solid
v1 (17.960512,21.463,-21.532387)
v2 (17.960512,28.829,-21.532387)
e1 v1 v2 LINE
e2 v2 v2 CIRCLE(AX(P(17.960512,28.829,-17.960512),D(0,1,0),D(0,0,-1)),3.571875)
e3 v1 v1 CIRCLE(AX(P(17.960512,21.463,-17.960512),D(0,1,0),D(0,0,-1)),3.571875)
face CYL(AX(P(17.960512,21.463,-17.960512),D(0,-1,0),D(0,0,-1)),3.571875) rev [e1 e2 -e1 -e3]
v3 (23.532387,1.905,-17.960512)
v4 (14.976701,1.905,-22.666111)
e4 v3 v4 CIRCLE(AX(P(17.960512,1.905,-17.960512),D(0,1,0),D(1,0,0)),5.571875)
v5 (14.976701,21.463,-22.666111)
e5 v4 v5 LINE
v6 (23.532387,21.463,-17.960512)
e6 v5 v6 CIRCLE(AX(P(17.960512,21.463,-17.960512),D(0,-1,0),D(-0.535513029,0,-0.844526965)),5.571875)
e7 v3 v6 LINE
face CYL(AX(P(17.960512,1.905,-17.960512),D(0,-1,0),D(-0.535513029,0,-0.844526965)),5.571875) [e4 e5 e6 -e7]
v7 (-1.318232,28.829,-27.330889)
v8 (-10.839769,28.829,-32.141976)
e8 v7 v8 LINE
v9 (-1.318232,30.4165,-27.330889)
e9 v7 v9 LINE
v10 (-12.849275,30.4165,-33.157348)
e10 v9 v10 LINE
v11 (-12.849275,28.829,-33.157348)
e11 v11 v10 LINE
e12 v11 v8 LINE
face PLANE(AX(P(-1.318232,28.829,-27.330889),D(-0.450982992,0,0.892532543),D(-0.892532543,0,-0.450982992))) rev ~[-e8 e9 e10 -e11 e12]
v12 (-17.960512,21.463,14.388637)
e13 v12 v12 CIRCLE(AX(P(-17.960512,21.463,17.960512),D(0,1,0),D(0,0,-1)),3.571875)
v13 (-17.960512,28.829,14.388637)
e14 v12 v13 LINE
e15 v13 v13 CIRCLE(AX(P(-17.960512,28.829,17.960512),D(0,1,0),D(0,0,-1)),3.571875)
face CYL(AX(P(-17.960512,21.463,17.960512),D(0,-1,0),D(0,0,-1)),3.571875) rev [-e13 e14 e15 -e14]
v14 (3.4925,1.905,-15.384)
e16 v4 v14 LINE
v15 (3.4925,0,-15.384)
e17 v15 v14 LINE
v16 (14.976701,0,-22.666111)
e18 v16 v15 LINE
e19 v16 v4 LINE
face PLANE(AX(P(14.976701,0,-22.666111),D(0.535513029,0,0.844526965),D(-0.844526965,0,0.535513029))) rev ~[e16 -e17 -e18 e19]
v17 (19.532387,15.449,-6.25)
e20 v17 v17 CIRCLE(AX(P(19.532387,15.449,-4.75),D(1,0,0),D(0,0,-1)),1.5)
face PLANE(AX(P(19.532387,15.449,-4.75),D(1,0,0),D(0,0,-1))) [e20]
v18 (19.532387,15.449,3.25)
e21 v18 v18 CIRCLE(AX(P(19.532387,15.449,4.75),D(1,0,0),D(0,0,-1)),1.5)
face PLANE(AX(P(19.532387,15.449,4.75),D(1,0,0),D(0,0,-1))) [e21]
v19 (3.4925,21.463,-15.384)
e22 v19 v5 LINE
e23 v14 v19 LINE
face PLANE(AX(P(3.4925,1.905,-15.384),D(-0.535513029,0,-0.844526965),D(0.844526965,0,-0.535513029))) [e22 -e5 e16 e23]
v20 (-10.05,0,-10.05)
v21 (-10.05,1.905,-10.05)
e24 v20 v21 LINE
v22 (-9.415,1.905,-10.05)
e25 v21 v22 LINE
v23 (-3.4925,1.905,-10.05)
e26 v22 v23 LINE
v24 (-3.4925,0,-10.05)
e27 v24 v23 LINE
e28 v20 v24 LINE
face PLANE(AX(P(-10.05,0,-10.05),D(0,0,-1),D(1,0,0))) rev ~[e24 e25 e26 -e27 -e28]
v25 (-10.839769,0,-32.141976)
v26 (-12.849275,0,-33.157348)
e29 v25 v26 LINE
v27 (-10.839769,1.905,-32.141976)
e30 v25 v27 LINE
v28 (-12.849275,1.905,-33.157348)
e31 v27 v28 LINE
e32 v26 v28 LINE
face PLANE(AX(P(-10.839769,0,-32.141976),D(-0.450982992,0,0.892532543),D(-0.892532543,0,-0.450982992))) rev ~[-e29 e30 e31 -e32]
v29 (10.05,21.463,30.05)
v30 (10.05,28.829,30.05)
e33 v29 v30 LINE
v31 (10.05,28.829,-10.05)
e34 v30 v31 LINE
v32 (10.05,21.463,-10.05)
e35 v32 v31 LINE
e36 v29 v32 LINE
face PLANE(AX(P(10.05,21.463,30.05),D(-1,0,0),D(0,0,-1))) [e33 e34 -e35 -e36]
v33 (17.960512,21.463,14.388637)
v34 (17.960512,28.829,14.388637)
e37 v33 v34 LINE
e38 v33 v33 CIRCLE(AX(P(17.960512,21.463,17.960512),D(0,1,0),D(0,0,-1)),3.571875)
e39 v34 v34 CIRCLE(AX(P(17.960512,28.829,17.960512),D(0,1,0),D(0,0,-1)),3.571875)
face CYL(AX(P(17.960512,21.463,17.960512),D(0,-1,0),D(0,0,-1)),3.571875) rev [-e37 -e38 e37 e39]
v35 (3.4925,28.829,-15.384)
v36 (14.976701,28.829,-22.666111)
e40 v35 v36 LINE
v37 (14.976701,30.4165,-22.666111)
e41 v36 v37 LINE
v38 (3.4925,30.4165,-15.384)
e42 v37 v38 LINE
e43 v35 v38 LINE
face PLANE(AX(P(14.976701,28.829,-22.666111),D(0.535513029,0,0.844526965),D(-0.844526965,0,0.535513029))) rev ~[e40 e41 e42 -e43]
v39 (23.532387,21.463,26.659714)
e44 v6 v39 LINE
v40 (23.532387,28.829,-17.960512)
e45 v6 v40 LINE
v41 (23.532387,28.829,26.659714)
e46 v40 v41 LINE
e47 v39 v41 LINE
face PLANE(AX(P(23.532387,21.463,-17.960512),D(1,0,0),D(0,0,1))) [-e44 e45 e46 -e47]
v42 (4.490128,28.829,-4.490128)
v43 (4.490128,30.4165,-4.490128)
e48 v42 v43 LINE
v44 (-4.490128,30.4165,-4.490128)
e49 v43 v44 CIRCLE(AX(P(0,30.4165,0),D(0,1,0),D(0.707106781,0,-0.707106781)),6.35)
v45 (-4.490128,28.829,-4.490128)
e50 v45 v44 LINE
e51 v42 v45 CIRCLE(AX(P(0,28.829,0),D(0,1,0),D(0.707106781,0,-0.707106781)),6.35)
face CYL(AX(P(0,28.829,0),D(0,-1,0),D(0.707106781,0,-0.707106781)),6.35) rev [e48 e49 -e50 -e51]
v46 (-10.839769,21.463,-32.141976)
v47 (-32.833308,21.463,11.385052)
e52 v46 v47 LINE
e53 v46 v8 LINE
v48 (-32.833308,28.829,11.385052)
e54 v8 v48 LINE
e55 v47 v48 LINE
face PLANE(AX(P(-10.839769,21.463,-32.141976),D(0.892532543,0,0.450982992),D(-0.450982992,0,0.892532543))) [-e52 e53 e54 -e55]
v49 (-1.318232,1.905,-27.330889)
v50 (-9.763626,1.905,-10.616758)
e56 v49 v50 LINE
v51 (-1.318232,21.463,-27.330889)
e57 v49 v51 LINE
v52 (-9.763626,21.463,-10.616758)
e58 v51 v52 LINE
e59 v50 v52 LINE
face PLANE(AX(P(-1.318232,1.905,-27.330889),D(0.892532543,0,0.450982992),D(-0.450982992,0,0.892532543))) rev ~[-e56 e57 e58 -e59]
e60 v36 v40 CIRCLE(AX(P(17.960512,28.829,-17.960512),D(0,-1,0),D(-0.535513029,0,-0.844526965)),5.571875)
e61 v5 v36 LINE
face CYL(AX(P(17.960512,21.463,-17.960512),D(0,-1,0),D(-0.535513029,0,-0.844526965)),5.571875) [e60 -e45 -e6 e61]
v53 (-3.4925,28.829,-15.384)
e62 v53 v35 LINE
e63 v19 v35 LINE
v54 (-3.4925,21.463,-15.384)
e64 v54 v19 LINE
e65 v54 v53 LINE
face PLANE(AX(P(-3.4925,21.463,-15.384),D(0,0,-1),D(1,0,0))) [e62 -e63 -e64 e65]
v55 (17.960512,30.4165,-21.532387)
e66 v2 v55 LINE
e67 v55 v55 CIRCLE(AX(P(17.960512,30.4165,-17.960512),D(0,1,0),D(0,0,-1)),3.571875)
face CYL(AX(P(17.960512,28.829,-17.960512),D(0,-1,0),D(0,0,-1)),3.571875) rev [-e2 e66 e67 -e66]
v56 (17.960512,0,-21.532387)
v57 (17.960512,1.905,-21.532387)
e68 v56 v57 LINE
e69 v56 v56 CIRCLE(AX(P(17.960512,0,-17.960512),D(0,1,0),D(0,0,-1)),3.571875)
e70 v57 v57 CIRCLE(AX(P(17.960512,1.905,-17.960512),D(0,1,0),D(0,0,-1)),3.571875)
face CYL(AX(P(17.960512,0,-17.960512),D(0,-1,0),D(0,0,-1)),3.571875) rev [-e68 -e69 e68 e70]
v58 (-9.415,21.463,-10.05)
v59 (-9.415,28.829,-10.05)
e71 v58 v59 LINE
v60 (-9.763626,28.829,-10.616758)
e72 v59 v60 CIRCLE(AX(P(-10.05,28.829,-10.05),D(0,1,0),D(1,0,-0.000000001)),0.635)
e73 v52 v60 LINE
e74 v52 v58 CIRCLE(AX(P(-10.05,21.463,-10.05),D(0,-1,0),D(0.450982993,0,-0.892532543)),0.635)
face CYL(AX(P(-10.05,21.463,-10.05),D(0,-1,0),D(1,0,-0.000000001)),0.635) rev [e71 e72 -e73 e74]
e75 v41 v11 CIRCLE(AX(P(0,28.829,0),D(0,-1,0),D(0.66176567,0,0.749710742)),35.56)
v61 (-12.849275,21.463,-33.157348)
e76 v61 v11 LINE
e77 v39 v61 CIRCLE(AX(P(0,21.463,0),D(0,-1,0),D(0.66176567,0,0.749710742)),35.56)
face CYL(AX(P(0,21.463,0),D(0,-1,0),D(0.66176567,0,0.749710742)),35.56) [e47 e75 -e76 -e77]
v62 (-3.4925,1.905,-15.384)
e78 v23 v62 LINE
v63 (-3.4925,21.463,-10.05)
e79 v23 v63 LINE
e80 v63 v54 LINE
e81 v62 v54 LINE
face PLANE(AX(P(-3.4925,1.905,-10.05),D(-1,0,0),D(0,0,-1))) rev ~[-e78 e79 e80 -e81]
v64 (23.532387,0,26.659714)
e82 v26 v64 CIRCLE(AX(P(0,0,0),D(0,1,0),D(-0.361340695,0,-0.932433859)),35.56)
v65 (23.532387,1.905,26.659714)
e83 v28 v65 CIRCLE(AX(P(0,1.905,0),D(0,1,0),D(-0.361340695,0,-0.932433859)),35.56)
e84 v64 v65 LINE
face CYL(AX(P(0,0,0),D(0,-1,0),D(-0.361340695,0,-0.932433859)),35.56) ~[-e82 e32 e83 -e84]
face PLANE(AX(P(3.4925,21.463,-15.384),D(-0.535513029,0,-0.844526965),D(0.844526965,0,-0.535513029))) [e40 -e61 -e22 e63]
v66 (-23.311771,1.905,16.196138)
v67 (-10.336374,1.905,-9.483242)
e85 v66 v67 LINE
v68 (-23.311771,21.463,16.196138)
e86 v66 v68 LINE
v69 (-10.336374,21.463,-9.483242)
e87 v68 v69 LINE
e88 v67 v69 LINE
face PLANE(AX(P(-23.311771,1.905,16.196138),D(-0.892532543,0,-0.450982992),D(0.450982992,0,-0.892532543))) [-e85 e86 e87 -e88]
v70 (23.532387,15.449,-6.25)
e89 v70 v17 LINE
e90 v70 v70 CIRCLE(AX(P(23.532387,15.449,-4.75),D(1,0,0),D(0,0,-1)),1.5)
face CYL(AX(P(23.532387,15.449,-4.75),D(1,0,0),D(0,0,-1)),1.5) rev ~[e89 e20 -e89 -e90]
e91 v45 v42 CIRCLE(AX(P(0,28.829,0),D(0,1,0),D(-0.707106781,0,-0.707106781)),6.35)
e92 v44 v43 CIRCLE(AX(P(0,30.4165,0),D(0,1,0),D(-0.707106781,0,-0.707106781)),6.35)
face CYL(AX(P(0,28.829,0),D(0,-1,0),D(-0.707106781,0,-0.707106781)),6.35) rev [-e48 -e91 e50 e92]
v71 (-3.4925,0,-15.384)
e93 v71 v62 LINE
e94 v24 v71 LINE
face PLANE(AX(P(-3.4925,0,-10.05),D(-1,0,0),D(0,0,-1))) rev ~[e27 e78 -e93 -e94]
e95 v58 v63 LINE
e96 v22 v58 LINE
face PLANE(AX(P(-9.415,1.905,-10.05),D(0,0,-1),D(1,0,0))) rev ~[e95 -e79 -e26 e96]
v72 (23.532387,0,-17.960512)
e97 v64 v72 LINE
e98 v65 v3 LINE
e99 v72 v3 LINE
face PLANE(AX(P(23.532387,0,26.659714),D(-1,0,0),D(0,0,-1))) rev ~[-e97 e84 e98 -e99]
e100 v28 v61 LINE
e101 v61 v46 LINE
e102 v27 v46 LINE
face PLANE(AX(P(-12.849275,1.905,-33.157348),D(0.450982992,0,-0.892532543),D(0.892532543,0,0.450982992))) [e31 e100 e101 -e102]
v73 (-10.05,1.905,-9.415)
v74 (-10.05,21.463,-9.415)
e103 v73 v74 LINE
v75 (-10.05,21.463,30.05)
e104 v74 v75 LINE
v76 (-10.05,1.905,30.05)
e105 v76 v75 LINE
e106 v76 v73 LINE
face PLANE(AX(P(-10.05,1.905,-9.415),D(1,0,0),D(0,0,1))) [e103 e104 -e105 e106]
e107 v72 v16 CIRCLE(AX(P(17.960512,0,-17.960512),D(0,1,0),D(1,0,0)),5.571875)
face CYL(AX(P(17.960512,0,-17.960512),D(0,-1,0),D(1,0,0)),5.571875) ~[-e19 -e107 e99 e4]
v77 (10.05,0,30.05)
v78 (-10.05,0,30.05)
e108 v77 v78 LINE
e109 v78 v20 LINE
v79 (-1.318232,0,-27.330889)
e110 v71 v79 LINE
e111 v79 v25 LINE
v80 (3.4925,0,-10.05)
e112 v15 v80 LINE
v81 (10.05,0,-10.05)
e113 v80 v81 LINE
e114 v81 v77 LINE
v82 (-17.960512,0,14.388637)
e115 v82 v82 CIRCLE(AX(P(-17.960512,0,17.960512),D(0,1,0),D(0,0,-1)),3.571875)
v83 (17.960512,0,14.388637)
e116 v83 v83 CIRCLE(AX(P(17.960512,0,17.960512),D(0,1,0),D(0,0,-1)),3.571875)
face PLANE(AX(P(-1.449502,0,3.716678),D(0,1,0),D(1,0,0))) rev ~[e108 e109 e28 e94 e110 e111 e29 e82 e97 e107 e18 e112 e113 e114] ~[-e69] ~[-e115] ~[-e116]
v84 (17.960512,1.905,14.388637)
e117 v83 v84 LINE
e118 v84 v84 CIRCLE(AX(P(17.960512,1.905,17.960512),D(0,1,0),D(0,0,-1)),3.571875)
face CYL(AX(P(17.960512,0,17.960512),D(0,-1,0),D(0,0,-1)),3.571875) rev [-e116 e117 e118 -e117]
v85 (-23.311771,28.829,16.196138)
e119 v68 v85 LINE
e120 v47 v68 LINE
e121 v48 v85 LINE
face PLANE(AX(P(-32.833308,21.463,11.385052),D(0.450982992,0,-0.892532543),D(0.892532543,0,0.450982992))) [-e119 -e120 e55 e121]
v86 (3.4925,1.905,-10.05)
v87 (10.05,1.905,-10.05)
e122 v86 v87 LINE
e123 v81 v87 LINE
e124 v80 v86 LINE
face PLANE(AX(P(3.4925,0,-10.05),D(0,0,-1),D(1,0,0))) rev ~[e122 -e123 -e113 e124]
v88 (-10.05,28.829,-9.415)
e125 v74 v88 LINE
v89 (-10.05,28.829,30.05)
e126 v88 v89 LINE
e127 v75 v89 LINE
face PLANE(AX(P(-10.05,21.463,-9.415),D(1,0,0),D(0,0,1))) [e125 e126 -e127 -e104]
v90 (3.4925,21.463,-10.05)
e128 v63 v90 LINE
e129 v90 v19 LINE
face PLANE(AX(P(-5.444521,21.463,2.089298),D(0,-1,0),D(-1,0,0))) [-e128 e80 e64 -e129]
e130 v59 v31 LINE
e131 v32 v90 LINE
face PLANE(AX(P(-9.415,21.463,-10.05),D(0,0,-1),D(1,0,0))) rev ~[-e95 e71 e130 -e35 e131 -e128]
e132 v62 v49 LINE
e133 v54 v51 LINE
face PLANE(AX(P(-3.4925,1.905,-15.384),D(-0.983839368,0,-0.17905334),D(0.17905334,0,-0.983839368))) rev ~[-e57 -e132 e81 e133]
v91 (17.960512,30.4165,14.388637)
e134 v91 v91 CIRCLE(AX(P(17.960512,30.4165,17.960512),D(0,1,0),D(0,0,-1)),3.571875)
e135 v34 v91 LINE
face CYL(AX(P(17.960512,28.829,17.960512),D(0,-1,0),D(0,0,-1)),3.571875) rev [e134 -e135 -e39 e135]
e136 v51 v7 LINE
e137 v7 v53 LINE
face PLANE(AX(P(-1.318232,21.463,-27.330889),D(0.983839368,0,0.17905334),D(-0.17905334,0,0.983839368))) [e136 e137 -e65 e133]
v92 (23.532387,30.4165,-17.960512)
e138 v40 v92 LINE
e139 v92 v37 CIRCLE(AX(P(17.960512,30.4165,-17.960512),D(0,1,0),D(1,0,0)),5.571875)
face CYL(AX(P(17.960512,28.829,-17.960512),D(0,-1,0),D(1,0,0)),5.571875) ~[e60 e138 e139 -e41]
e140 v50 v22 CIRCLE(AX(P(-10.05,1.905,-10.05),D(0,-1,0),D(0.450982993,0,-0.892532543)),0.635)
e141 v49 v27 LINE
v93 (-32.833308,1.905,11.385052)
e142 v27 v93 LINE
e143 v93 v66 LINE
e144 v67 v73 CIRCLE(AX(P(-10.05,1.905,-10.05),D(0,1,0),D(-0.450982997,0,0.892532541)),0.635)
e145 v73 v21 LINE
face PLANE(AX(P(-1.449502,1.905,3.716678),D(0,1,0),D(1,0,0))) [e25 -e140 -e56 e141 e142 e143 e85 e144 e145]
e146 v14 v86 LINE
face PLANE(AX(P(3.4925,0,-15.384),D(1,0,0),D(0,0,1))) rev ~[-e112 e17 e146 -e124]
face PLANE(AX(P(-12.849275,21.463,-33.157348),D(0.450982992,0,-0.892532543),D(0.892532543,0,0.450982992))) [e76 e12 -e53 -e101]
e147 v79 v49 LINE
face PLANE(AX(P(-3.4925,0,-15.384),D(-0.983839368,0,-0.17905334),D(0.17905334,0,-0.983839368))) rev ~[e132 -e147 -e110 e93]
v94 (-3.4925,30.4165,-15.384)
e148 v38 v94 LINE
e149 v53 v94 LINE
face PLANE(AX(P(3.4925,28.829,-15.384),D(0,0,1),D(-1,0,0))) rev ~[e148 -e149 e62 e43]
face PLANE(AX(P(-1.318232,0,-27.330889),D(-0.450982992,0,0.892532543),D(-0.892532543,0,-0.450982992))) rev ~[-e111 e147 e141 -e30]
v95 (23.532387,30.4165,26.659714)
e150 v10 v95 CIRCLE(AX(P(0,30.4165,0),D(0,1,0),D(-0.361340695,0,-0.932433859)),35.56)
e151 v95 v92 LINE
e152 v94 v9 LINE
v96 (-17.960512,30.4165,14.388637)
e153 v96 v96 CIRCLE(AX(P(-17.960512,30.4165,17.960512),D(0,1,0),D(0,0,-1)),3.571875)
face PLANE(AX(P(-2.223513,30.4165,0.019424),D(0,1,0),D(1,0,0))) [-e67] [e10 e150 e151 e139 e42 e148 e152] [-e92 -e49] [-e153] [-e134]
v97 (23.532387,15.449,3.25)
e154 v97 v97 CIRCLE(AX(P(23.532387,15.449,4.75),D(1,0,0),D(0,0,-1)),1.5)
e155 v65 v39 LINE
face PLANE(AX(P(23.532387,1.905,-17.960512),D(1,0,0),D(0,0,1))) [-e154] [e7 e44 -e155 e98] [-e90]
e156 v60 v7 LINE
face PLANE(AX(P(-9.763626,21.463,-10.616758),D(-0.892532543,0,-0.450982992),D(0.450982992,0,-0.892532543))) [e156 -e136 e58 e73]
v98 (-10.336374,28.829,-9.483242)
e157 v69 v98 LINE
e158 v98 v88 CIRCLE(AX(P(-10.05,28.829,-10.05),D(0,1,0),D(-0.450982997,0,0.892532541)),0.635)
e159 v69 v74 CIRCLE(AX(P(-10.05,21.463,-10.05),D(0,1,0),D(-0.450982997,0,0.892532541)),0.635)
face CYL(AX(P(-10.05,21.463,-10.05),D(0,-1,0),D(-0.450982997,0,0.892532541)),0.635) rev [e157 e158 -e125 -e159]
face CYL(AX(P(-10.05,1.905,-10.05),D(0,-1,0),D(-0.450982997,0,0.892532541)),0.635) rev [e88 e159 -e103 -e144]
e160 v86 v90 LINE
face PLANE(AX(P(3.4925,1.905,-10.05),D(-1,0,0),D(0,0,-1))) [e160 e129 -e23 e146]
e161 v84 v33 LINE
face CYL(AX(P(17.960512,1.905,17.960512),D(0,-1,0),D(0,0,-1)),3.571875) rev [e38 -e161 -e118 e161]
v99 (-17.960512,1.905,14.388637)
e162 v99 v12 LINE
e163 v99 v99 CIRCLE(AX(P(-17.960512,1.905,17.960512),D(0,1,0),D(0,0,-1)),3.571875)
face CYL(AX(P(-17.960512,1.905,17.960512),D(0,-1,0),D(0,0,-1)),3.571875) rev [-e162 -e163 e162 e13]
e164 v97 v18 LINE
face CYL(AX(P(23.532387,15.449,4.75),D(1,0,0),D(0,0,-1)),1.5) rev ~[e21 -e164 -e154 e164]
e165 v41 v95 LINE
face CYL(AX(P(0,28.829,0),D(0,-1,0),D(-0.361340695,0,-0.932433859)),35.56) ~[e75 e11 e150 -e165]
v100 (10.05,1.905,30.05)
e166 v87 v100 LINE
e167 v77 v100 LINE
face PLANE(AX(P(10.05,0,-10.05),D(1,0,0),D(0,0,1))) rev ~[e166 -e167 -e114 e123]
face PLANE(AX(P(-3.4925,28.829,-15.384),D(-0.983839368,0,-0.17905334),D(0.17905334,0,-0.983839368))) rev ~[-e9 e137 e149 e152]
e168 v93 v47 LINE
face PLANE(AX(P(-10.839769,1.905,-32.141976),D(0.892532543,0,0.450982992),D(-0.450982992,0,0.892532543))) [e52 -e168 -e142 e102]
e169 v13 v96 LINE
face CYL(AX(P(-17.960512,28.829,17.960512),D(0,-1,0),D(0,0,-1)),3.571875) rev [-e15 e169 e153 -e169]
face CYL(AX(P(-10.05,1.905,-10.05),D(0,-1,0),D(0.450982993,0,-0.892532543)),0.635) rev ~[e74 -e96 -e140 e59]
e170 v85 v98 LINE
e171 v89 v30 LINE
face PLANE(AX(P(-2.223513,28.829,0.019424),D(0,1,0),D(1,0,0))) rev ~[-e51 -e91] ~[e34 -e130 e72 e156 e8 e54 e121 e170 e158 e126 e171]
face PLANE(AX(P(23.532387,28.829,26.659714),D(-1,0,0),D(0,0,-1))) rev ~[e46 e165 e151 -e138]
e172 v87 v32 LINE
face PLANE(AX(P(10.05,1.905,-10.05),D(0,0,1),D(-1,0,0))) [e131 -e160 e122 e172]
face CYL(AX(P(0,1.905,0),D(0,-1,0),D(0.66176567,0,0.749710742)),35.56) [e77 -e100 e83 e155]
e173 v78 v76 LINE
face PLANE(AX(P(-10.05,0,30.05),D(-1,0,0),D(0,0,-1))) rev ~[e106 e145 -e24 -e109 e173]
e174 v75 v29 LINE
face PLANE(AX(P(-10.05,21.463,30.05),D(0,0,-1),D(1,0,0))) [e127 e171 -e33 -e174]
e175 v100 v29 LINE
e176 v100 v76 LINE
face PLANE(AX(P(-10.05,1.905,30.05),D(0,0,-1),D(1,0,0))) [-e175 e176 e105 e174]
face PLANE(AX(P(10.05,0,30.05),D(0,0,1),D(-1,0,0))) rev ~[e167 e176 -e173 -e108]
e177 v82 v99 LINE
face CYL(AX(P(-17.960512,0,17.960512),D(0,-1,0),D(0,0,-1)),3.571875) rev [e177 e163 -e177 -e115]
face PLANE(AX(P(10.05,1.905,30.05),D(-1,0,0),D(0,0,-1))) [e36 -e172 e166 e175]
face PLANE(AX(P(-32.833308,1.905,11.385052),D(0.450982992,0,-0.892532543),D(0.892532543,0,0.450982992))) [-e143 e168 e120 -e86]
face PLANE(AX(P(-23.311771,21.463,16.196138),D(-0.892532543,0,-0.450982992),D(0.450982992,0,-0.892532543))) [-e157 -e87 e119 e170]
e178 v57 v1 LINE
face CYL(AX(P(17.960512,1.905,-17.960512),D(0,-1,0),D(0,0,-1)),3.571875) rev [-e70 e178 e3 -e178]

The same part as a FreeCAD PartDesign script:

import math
import FreeCAD as App
import Part
import Sketcher
Q = App.Units.Quantity

doc = App.newDocument("Part")
params = doc.addObject("Spreadsheet::Sheet", "Params")
for row, (alias, value) in enumerate([
    ("sketch1_radius", "1.4 in"),
    ("sketch1_diameter", "0.28125 in"),
    ("sketch1_height", "0.21 in"),
    ("sketch1_length", "0.42 in"),
    ("pad1_length", "0.075 in"),
    ("sketch2_radius", "1.4 in"),
    ("sketch2_diameter", "0.28125 in"),
    ("sketch2_radius2", "0.025 in"),
    ("sketch2_height", "0.21 in"),
    ("sketch2_length", "1.92 in"),
    ("pad2_length", "0.77 in"),
    ("sketch3_radius", "1.4 in"),
    ("sketch3_diameter", "0.28125 in"),
    ("sketch3_radius2", "0.025 in"),
    ("sketch3_length", "0.42 in"),
    ("sketch3_length2", "1.92 in"),
    ("pad3_length", "0.29 in"),
    ("sketch4_radius", "1.4 in"),
    ("sketch4_radius2", "0.25 in"),
    ("sketch4_diameter", "0.28125 in"),
    ("sketch4_width", "0.275 in"),
    ("pad4_length", "0.0625 in"),
    ("pocket1_length", "4 mm"),
], start=1):
    params.set(f"A{row}", alias)
    params.set(f"B{row}", "=" + value)
    params.setAlias(f"B{row}", alias)

body = doc.addObject("PartDesign::Body", "Body")

# Sketch on XZ plane
sketch1 = doc.addObject("Sketcher::SketchObject", "Sketch")
body.addObject(sketch1)
sketch1.AttachmentSupport = (doc.XZ_Plane, [""])
sketch1.MapMode = "FlatFace"
sketch1.addGeometry(Part.LineSegment(App.Vector(10.1, 30.1, 0), App.Vector(-10.1, 30.1, 0)), False)
sketch1.addGeometry(Part.LineSegment(App.Vector(-10.1, 30.1, 0), App.Vector(-10.1, -10.1, 0)), False)
sketch1.addGeometry(Part.LineSegment(App.Vector(-10.1, -10.1, 0), App.Vector(-3.5, -10.1, 0)), False)
sketch1.addGeometry(Part.LineSegment(App.Vector(-3.5, -10.1, 0), App.Vector(-3.5, -15.4, 0)), False)
sketch1.addGeometry(Part.LineSegment(App.Vector(-3.5, -15.4, 0), App.Vector(-1.3, -27.3, 0)), False)
sketch1.addGeometry(Part.LineSegment(App.Vector(-1.3, -27.3, 0), App.Vector(-10.8, -32.1, 0)), False)
sketch1.addGeometry(Part.LineSegment(App.Vector(-10.8, -32.1, 0), App.Vector(-12.8, -33.2, 0)), False)
sketch1.addGeometry(Part.ArcOfCircle(Part.Circle(App.Vector(0, 0, 0), App.Vector(0, 0, 1), 35.6), math.radians(49), math.radians(249)), False)
sketch1.addGeometry(Part.LineSegment(App.Vector(23.5, 26.7, 0), App.Vector(23.5, -18, 0)), False)
sketch1.addGeometry(Part.ArcOfCircle(Part.Circle(App.Vector(18, -18, 0), App.Vector(0, 0, 1), 5.6), math.radians(-122), math.radians(0)), False)
sketch1.addGeometry(Part.LineSegment(App.Vector(15, -22.7, 0), App.Vector(3.5, -15.4, 0)), False)
sketch1.addGeometry(Part.LineSegment(App.Vector(3.5, -15.4, 0), App.Vector(3.5, -10.1, 0)), False)
sketch1.addGeometry(Part.LineSegment(App.Vector(3.5, -10.1, 0), App.Vector(10.1, -10.1, 0)), False)
sketch1.addGeometry(Part.LineSegment(App.Vector(10.1, -10.1, 0), App.Vector(10.1, 30.1, 0)), False)
sketch1.addGeometry(Part.Circle(App.Vector(-18, 18, 0), App.Vector(0, 0, 1), 3.6), False)
sketch1.addGeometry(Part.Circle(App.Vector(18, 18, 0), App.Vector(0, 0, 1), 3.6), False)
sketch1.addGeometry(Part.Circle(App.Vector(18, -18, 0), App.Vector(0, 0, 1), 3.6), False)
sketch1.addConstraint(Sketcher.Constraint("Coincident", 0, 2, 1, 1))
sketch1.addConstraint(Sketcher.Constraint("Coincident", 1, 2, 2, 1))
sketch1.addConstraint(Sketcher.Constraint("Coincident", 2, 2, 3, 1))
sketch1.addConstraint(Sketcher.Constraint("Coincident", 3, 2, 4, 1))
sketch1.addConstraint(Sketcher.Constraint("Coincident", 4, 2, 5, 1))
sketch1.addConstraint(Sketcher.Constraint("Coincident", 5, 2, 6, 1))
sketch1.addConstraint(Sketcher.Constraint("Coincident", 6, 2, 7, 2))
sketch1.addConstraint(Sketcher.Constraint("Coincident", 7, 1, 8, 1))
sketch1.addConstraint(Sketcher.Constraint("Tangent", 8, 2, 9, 2))
sketch1.addConstraint(Sketcher.Constraint("Tangent", 9, 1, 10, 1))
sketch1.addConstraint(Sketcher.Constraint("Coincident", 10, 2, 11, 1))
sketch1.addConstraint(Sketcher.Constraint("Coincident", 11, 2, 12, 1))
sketch1.addConstraint(Sketcher.Constraint("Coincident", 12, 2, 13, 1))
sketch1.addConstraint(Sketcher.Constraint("Coincident", 13, 2, 0, 1))
sketch1.addConstraint(Sketcher.Constraint("Horizontal", 0))
sketch1.addConstraint(Sketcher.Constraint("Vertical", 1))
sketch1.addConstraint(Sketcher.Constraint("Horizontal", 2))
sketch1.addConstraint(Sketcher.Constraint("Vertical", 3))
sketch1.addConstraint(Sketcher.Constraint("Vertical", 8))
sketch1.addConstraint(Sketcher.Constraint("Vertical", 11))
sketch1.addConstraint(Sketcher.Constraint("Horizontal", 12))
sketch1.addConstraint(Sketcher.Constraint("Vertical", 13))
sketch1.addConstraint(Sketcher.Constraint("Coincident", 7, 3, -1, 1))
sketch1.addConstraint(Sketcher.Constraint("Coincident", 16, 3, 9, 3))
sketch1.addConstraint(Sketcher.Constraint("Equal", 14, 15))
sketch1.addConstraint(Sketcher.Constraint("Equal", 15, 16))
sketch1.addConstraint(Sketcher.Constraint("Symmetric", 9, 3, 14, 3, -1, 1))
sketch1.addConstraint(Sketcher.Constraint("Symmetric", 14, 3, 15, 3, -2))
sketch1.addConstraint(Sketcher.Constraint("Symmetric", 3, 2, 10, 2, -2))
sketch1.addConstraint(Sketcher.Constraint("Symmetric", 1, 2, 12, 2, -2))
sketch1.addConstraint(Sketcher.Constraint("Parallel", 5, 6))
sketch1.addConstraint(Sketcher.Constraint("Radius", 7, Q("1.4 in")))
sketch1.addConstraint(Sketcher.Constraint("Diameter", 14, Q("0.28125 in")))
sketch1.addConstraint(Sketcher.Constraint("DistanceY", 3, 2, 3, 1, Q("0.21 in")))
sketch1.addConstraint(Sketcher.Constraint("Distance", 5, Q("0.42 in")))
sketch1.addConstraint(Sketcher.Constraint("DistanceX", 3, 2, 10, 2, Q("0.275 in")))
sketch1.addConstraint(Sketcher.Constraint("DistanceX", 0, 2, 0, 1, 20.1))
sketch1.addConstraint(Sketcher.Constraint("DistanceY", 1, 2, 1, 1, 40.1))
sketch1.addConstraint(Sketcher.Constraint("Radius", 9, 5.571875))
sketch1.addConstraint(Sketcher.Constraint("DistanceY", -1, 1, 0, 2, 30.05))
sketch1.addConstraint(Sketcher.Constraint("DistanceX", -1, 1, 9, 1, 14.976701))
sketch1.addConstraint(Sketcher.Constraint("DistanceY", 15, 3, 7, 1, 8.699202))
sketch1.addConstraint(Sketcher.Constraint("Distance", 4, 12.14313))
sketch1.addConstraint(Sketcher.Constraint("DistanceY", 4, 2, -1, 1, 27.330889))
sketch1.addConstraint(Sketcher.Constraint("DistanceX", 5, 2, -1, 1, 10.839769))
sketch1.setExpression("Constraints[31]", "Params.sketch1_radius")
sketch1.setExpression("Constraints[32]", "Params.sketch1_diameter")
sketch1.setExpression("Constraints[33]", "Params.sketch1_height")
sketch1.setExpression("Constraints[34]", "Params.sketch1_length")
pad1 = doc.addObject("PartDesign::Pad", "Pad")
body.addObject(pad1)
pad1.Profile = sketch1
pad1.setExpression("Length", "Params.pad1_length")
pad1.Reversed = True

# Sketch on XZ plane
sketch2 = doc.addObject("Sketcher::SketchObject", "Sketch001")
body.addObject(sketch2)
sketch2.AttachmentSupport = (doc.XZ_Plane, [""])
sketch2.MapMode = "FlatFace"
sketch2.AttachmentOffset = App.Placement(App.Vector(0, 0, -0.075 * 25.4), App.Rotation())
sketch2.addGeometry(Part.LineSegment(App.Vector(-32.83, 11.39, 0), App.Vector(-10.84, -32.14, 0)), False)
sketch2.addGeometry(Part.LineSegment(App.Vector(-10.84, -32.14, 0), App.Vector(-12.85, -33.16, 0)), False)
sketch2.addGeometry(Part.ArcOfCircle(Part.Circle(App.Vector(0, 0, 0), App.Vector(0, 0, 1), 35.56), math.radians(49), math.radians(249)), False)
sketch2.addGeometry(Part.LineSegment(App.Vector(23.53, 26.66, 0), App.Vector(23.53, -17.96, 0)), False)
sketch2.addGeometry(Part.ArcOfCircle(Part.Circle(App.Vector(17.96, -17.96, 0), App.Vector(0, 0, 1), 5.57), math.radians(-122), math.radians(0)), False)
sketch2.addGeometry(Part.LineSegment(App.Vector(14.98, -22.67, 0), App.Vector(3.49, -15.38, 0)), False)
sketch2.addGeometry(Part.LineSegment(App.Vector(3.49, -15.38, 0), App.Vector(3.49, -10.05, 0)), False)
sketch2.addGeometry(Part.LineSegment(App.Vector(3.49, -10.05, 0), App.Vector(10.05, -10.05, 0)), False)
sketch2.addGeometry(Part.LineSegment(App.Vector(10.05, -10.05, 0), App.Vector(10.05, 30.05, 0)), False)
sketch2.addGeometry(Part.LineSegment(App.Vector(10.05, 30.05, 0), App.Vector(-10.05, 30.05, 0)), False)
sketch2.addGeometry(Part.LineSegment(App.Vector(-10.05, 30.05, 0), App.Vector(-10.05, -9.41, 0)), False)
sketch2.addGeometry(Part.ArcOfCircle(Part.Circle(App.Vector(-10.05, -10.05, 0), App.Vector(0, 0, 1), 0.63), math.radians(90), math.radians(117)), False)
sketch2.addGeometry(Part.LineSegment(App.Vector(-10.34, -9.48, 0), App.Vector(-23.31, 16.2, 0)), False)
sketch2.addGeometry(Part.LineSegment(App.Vector(-23.31, 16.2, 0), App.Vector(-32.83, 11.39, 0)), False)
sketch2.addGeometry(Part.Circle(App.Vector(17.96, 17.96, 0), App.Vector(0, 0, 1), 3.57), False)
sketch2.addGeometry(Part.Circle(App.Vector(-17.96, 17.96, 0), App.Vector(0, 0, 1), 3.57), False)
sketch2.addGeometry(Part.Circle(App.Vector(17.96, -17.96, 0), App.Vector(0, 0, 1), 3.57), False)
sketch2.addGeometry(Part.LineSegment(App.Vector(-1.32, -27.33, 0), App.Vector(-9.76, -10.62, 0)), False)
sketch2.addGeometry(Part.ArcOfCircle(Part.Circle(App.Vector(-10.05, -10.05, 0), App.Vector(0, 0, 1), 0.64), math.radians(-63), math.radians(0)), False)
sketch2.addGeometry(Part.LineSegment(App.Vector(-9.41, -10.05, 0), App.Vector(-3.49, -10.05, 0)), False)
sketch2.addGeometry(Part.LineSegment(App.Vector(-3.49, -10.05, 0), App.Vector(-3.49, -15.38, 0)), False)
sketch2.addGeometry(Part.LineSegment(App.Vector(-3.49, -15.38, 0), App.Vector(-1.32, -27.33, 0)), False)
sketch2.addConstraint(Sketcher.Constraint("Coincident", 0, 2, 1, 1))
sketch2.addConstraint(Sketcher.Constraint("Coincident", 1, 2, 2, 2))
sketch2.addConstraint(Sketcher.Constraint("Coincident", 2, 1, 3, 1))
sketch2.addConstraint(Sketcher.Constraint("Tangent", 3, 2, 4, 2))
sketch2.addConstraint(Sketcher.Constraint("Tangent", 4, 1, 5, 1))
sketch2.addConstraint(Sketcher.Constraint("Coincident", 5, 2, 6, 1))
sketch2.addConstraint(Sketcher.Constraint("Coincident", 6, 2, 7, 1))
sketch2.addConstraint(Sketcher.Constraint("Coincident", 7, 2, 8, 1))
sketch2.addConstraint(Sketcher.Constraint("Coincident", 8, 2, 9, 1))
sketch2.addConstraint(Sketcher.Constraint("Coincident", 9, 2, 10, 1))
sketch2.addConstraint(Sketcher.Constraint("Coincident", 10, 2, 11, 1))
sketch2.addConstraint(Sketcher.Constraint("Coincident", 11, 2, 12, 1))
sketch2.addConstraint(Sketcher.Constraint("Coincident", 12, 2, 13, 1))
sketch2.addConstraint(Sketcher.Constraint("Coincident", 13, 2, 0, 1))
sketch2.addConstraint(Sketcher.Constraint("Coincident", 17, 2, 18, 1))
sketch2.addConstraint(Sketcher.Constraint("Coincident", 18, 2, 19, 1))
sketch2.addConstraint(Sketcher.Constraint("Coincident", 19, 2, 20, 1))
sketch2.addConstraint(Sketcher.Constraint("Coincident", 20, 2, 21, 1))
sketch2.addConstraint(Sketcher.Constraint("Coincident", 21, 2, 17, 1))
sketch2.addConstraint(Sketcher.Constraint("Vertical", 3))
sketch2.addConstraint(Sketcher.Constraint("Vertical", 6))
sketch2.addConstraint(Sketcher.Constraint("Horizontal", 7))
sketch2.addConstraint(Sketcher.Constraint("Vertical", 8))
sketch2.addConstraint(Sketcher.Constraint("Horizontal", 9))
sketch2.addConstraint(Sketcher.Constraint("Vertical", 10))
sketch2.addConstraint(Sketcher.Constraint("Horizontal", 19))
sketch2.addConstraint(Sketcher.Constraint("Vertical", 20))
sketch2.addConstraint(Sketcher.Constraint("Coincident", 2, 3, -1, 1))
sketch2.addConstraint(Sketcher.Constraint("Coincident", 16, 3, 4, 3))
sketch2.addConstraint(Sketcher.Constraint("Coincident", 18, 3, 11, 3))
sketch2.addConstraint(Sketcher.Constraint("Equal", 14, 15))
sketch2.addConstraint(Sketcher.Constraint("Equal", 15, 16))
sketch2.addConstraint(Sketcher.Constraint("Equal", 11, 18))
sketch2.addConstraint(Sketcher.Constraint("Symmetric", 4, 3, 15, 3, -1, 1))
sketch2.addConstraint(Sketcher.Constraint("Symmetric", 14, 3, 15, 3, -2))
sketch2.addConstraint(Sketcher.Constraint("Symmetric", 6, 2, 19, 2, -2))
sketch2.addConstraint(Sketcher.Constraint("Perpendicular", 0, 1))
sketch2.addConstraint(Sketcher.Constraint("Perpendicular", 1, 12))
sketch2.addConstraint(Sketcher.Constraint("Perpendicular", 12, 13))
sketch2.addConstraint(Sketcher.Constraint("Perpendicular", 13, 17))
sketch2.addConstraint(Sketcher.Constraint("Horizontal", 18, 3, 6, 2))
sketch2.addConstraint(Sketcher.Constraint("Horizontal", 5, 2, 20, 2))
sketch2.addConstraint(Sketcher.Constraint("Vertical", 18, 3, 9, 2))
sketch2.addConstraint(Sketcher.Constraint("Radius", 2, Q("1.4 in")))
sketch2.addConstraint(Sketcher.Constraint("Diameter", 14, Q("0.28125 in")))
sketch2.addConstraint(Sketcher.Constraint("Radius", 11, Q("0.025 in")))
sketch2.addConstraint(Sketcher.Constraint("DistanceY", 6, 1, 6, 2, Q("0.21 in")))
sketch2.addConstraint(Sketcher.Constraint("Distance", 0, Q("1.92 in")))
sketch2.addConstraint(Sketcher.Constraint("Distance", 13, Q("0.42 in")))
sketch2.addConstraint(Sketcher.Constraint("DistanceX", 20, 2, 5, 2, Q("0.275 in")))
sketch2.addConstraint(Sketcher.Constraint("DistanceX", 7, 1, 7, 2, 6.5575))
sketch2.addConstraint(Sketcher.Constraint("DistanceX", 9, 2, 9, 1, 20.1))
sketch2.addConstraint(Sketcher.Constraint("DistanceY", 8, 1, 8, 2, 40.1))
sketch2.addConstraint(Sketcher.Constraint("Radius", 4, 5.571875))
sketch2.addConstraint(Sketcher.Constraint("DistanceY", 11, 3, -1, 1, 10.05))
sketch2.addConstraint(Sketcher.Constraint("DistanceX", -1, 1, 4, 1, 14.976701))
sketch2.addConstraint(Sketcher.Constraint("DistanceY", 14, 3, 2, 1, 8.699202))
sketch2.addConstraint(Sketcher.Constraint("Distance", 21, 12.14313))
sketch2.addConstraint(Sketcher.Constraint("DistanceX", 0, 2, -1, 1, 10.839769))
sketch2.addConstraint(Sketcher.Constraint("DistanceY", 1, 2, -1, 1, 33.157348))
sketch2.addConstraint(Sketcher.Constraint("DistanceY", 11, 2, -1, 1, 9.483242))
sketch2.addConstraint(Sketcher.Constraint("DistanceY", 17, 2, -1, 1, 10.616758))
sketch2.setExpression("Constraints[43]", "Params.sketch2_radius")
sketch2.setExpression("Constraints[44]", "Params.sketch2_diameter")
sketch2.setExpression("Constraints[45]", "Params.sketch2_radius2")
sketch2.setExpression("Constraints[46]", "Params.sketch2_height")
sketch2.setExpression("Constraints[47]", "Params.sketch2_length")
pad2 = doc.addObject("PartDesign::Pad", "Pad001")
body.addObject(pad2)
pad2.Profile = sketch2
pad2.setExpression("Length", "Params.pad2_length")
pad2.Reversed = True

# Sketch on XZ plane
sketch3 = doc.addObject("Sketcher::SketchObject", "Sketch002")
body.addObject(sketch3)
sketch3.AttachmentSupport = (doc.XZ_Plane, [""])
sketch3.MapMode = "FlatFace"
sketch3.AttachmentOffset = App.Placement(App.Vector(0, 0, -0.845 * 25.4), App.Rotation())
sketch3.addGeometry(Part.LineSegment(App.Vector(-9.41, -10.05, 0), App.Vector(10.05, -10.05, 0)), False)
sketch3.addGeometry(Part.LineSegment(App.Vector(10.05, -10.05, 0), App.Vector(10.05, 30.05, 0)), False)
sketch3.addGeometry(Part.LineSegment(App.Vector(10.05, 30.05, 0), App.Vector(-10.05, 30.05, 0)), False)
sketch3.addGeometry(Part.LineSegment(App.Vector(-10.05, 30.05, 0), App.Vector(-10.05, -9.41, 0)), False)
sketch3.addGeometry(Part.ArcOfCircle(Part.Circle(App.Vector(-10.05, -10.05, 0), App.Vector(0, 0, 1), 0.63), math.radians(90), math.radians(117)), False)
sketch3.addGeometry(Part.LineSegment(App.Vector(-10.34, -9.48, 0), App.Vector(-23.31, 16.2, 0)), False)
sketch3.addGeometry(Part.LineSegment(App.Vector(-23.31, 16.2, 0), App.Vector(-32.83, 11.39, 0)), False)
sketch3.addGeometry(Part.LineSegment(App.Vector(-32.83, 11.39, 0), App.Vector(-10.84, -32.14, 0)), False)
sketch3.addGeometry(Part.LineSegment(App.Vector(-10.84, -32.14, 0), App.Vector(-12.85, -33.16, 0)), False)
sketch3.addGeometry(Part.ArcOfCircle(Part.Circle(App.Vector(0, 0, 0), App.Vector(0, 0, 1), 35.56), math.radians(49), math.radians(249)), False)
sketch3.addGeometry(Part.LineSegment(App.Vector(23.53, 26.66, 0), App.Vector(23.53, -17.96, 0)), False)
sketch3.addGeometry(Part.ArcOfCircle(Part.Circle(App.Vector(17.96, -17.96, 0), App.Vector(0, 0, 1), 5.57), math.radians(-122), math.radians(0)), False)
sketch3.addGeometry(Part.LineSegment(App.Vector(14.98, -22.67, 0), App.Vector(3.49, -15.38, 0)), False)
sketch3.addGeometry(Part.LineSegment(App.Vector(3.49, -15.38, 0), App.Vector(-3.49, -15.38, 0)), False)
sketch3.addGeometry(Part.LineSegment(App.Vector(-3.49, -15.38, 0), App.Vector(-1.32, -27.33, 0)), False)
sketch3.addGeometry(Part.LineSegment(App.Vector(-1.32, -27.33, 0), App.Vector(-9.76, -10.62, 0)), False)
sketch3.addGeometry(Part.ArcOfCircle(Part.Circle(App.Vector(-10.05, -10.05, 0), App.Vector(0, 0, 1), 0.64), math.radians(-63), math.radians(0)), False)
sketch3.addGeometry(Part.Circle(App.Vector(17.96, 17.96, 0), App.Vector(0, 0, 1), 3.57), False)
sketch3.addGeometry(Part.Circle(App.Vector(-17.96, 17.96, 0), App.Vector(0, 0, 1), 3.57), False)
sketch3.addGeometry(Part.Circle(App.Vector(17.96, -17.96, 0), App.Vector(0, 0, 1), 3.57), False)
sketch3.addConstraint(Sketcher.Constraint("Coincident", 0, 2, 1, 1))
sketch3.addConstraint(Sketcher.Constraint("Coincident", 1, 2, 2, 1))
sketch3.addConstraint(Sketcher.Constraint("Coincident", 2, 2, 3, 1))
sketch3.addConstraint(Sketcher.Constraint("Coincident", 3, 2, 4, 1))
sketch3.addConstraint(Sketcher.Constraint("Coincident", 4, 2, 5, 1))
sketch3.addConstraint(Sketcher.Constraint("Coincident", 5, 2, 6, 1))
sketch3.addConstraint(Sketcher.Constraint("Coincident", 6, 2, 7, 1))
sketch3.addConstraint(Sketcher.Constraint("Coincident", 7, 2, 8, 1))
sketch3.addConstraint(Sketcher.Constraint("Coincident", 8, 2, 9, 2))
sketch3.addConstraint(Sketcher.Constraint("Coincident", 9, 1, 10, 1))
sketch3.addConstraint(Sketcher.Constraint("Tangent", 10, 2, 11, 2))
sketch3.addConstraint(Sketcher.Constraint("Tangent", 11, 1, 12, 1))
sketch3.addConstraint(Sketcher.Constraint("Coincident", 12, 2, 13, 1))
sketch3.addConstraint(Sketcher.Constraint("Coincident", 13, 2, 14, 1))
sketch3.addConstraint(Sketcher.Constraint("Coincident", 14, 2, 15, 1))
sketch3.addConstraint(Sketcher.Constraint("Coincident", 15, 2, 16, 1))
sketch3.addConstraint(Sketcher.Constraint("Coincident", 16, 2, 0, 1))
sketch3.addConstraint(Sketcher.Constraint("Horizontal", 0))
sketch3.addConstraint(Sketcher.Constraint("Vertical", 1))
sketch3.addConstraint(Sketcher.Constraint("Horizontal", 2))
sketch3.addConstraint(Sketcher.Constraint("Vertical", 3))
sketch3.addConstraint(Sketcher.Constraint("Vertical", 10))
sketch3.addConstraint(Sketcher.Constraint("Horizontal", 13))
sketch3.addConstraint(Sketcher.Constraint("Coincident", 9, 3, -1, 1))
sketch3.addConstraint(Sketcher.Constraint("Coincident", 16, 3, 4, 3))
sketch3.addConstraint(Sketcher.Constraint("Coincident", 19, 3, 11, 3))
sketch3.addConstraint(Sketcher.Constraint("Equal", 4, 16))
sketch3.addConstraint(Sketcher.Constraint("Equal", 17, 18))
sketch3.addConstraint(Sketcher.Constraint("Equal", 18, 19))
sketch3.addConstraint(Sketcher.Constraint("Symmetric", 11, 3, 18, 3, -1, 1))
sketch3.addConstraint(Sketcher.Constraint("Symmetric", 17, 3, 18, 3, -2))
sketch3.addConstraint(Sketcher.Constraint("Perpendicular", 5, 6))
sketch3.addConstraint(Sketcher.Constraint("Perpendicular", 6, 7))
sketch3.addConstraint(Sketcher.Constraint("Perpendicular", 7, 8))
sketch3.addConstraint(Sketcher.Constraint("Perpendicular", 8, 15))
sketch3.addConstraint(Sketcher.Constraint("Horizontal", 16, 3, 0, 2))
sketch3.addConstraint(Sketcher.Constraint("Vertical", 16, 3, 2, 2))
sketch3.addConstraint(Sketcher.Constraint("Radius", 9, Q("1.4 in")))
sketch3.addConstraint(Sketcher.Constraint("Diameter", 17, Q("0.28125 in")))
sketch3.addConstraint(Sketcher.Constraint("Radius", 4, Q("0.025 in")))
sketch3.addConstraint(Sketcher.Constraint("Distance", 6, Q("0.42 in")))
sketch3.addConstraint(Sketcher.Constraint("Distance", 7, Q("1.92 in")))
sketch3.addConstraint(Sketcher.Constraint("DistanceX", 13, 2, 13, 1, Q("0.275 in")))
sketch3.addConstraint(Sketcher.Constraint("DistanceY", 12, 2, 0, 2, Q("0.21 in")))
sketch3.addConstraint(Sketcher.Constraint("DistanceX", 0, 1, 0, 2, 19.465))
sketch3.addConstraint(Sketcher.Constraint("DistanceY", 1, 1, 1, 2, 40.1))
sketch3.addConstraint(Sketcher.Constraint("DistanceX", -1, 1, 12, 2, Q("0.1375 in")))
sketch3.addConstraint(Sketcher.Constraint("Radius", 11, 5.571875))
sketch3.addConstraint(Sketcher.Constraint("DistanceX", 4, 3, -1, 1, 10.05))
sketch3.addConstraint(Sketcher.Constraint("DistanceY", 4, 3, -1, 1, 10.05))
sketch3.addConstraint(Sketcher.Constraint("DistanceX", -1, 1, 11, 1, 14.976701))
sketch3.addConstraint(Sketcher.Constraint("DistanceX", 8, 2, 4, 2, 2.512901))
sketch3.addConstraint(Sketcher.Constraint("DistanceY", 17, 3, 9, 1, 8.699202))
sketch3.addConstraint(Sketcher.Constraint("Distance", 14, 12.14313))
sketch3.addConstraint(Sketcher.Constraint("DistanceY", 4, 2, -1, 1, 9.483242))
sketch3.addConstraint(Sketcher.Constraint("DistanceX", 5, 2, -1, 1, 23.311771))
sketch3.addConstraint(Sketcher.Constraint("DistanceY", 14, 2, -1, 1, 27.330889))
sketch3.setExpression("Constraints[37]", "Params.sketch3_radius")
sketch3.setExpression("Constraints[38]", "Params.sketch3_diameter")
sketch3.setExpression("Constraints[39]", "Params.sketch3_radius2")
sketch3.setExpression("Constraints[40]", "Params.sketch3_length")
sketch3.setExpression("Constraints[41]", "Params.sketch3_length2")
pad3 = doc.addObject("PartDesign::Pad", "Pad002")
body.addObject(pad3)
pad3.Profile = sketch3
pad3.setExpression("Length", "Params.pad3_length")
pad3.Reversed = True

# Sketch on XZ plane
sketch4 = doc.addObject("Sketcher::SketchObject", "Sketch003")
body.addObject(sketch4)
sketch4.AttachmentSupport = (doc.XZ_Plane, [""])
sketch4.MapMode = "FlatFace"
sketch4.AttachmentOffset = App.Placement(App.Vector(0, 0, -1.135 * 25.4), App.Rotation())
sketch4.addGeometry(Part.LineSegment(App.Vector(3.5, -15.4, 0), App.Vector(-3.5, -15.4, 0)), False)
sketch4.addGeometry(Part.LineSegment(App.Vector(-3.5, -15.4, 0), App.Vector(-1.3, -27.3, 0)), False)
sketch4.addGeometry(Part.LineSegment(App.Vector(-1.3, -27.3, 0), App.Vector(-12.8, -33.2, 0)), False)
sketch4.addGeometry(Part.ArcOfCircle(Part.Circle(App.Vector(0, 0, 0), App.Vector(0, 0, 1), 35.6), math.radians(49), math.radians(249)), False)
sketch4.addGeometry(Part.LineSegment(App.Vector(23.5, 26.7, 0), App.Vector(23.5, -18, 0)), False)
sketch4.addGeometry(Part.ArcOfCircle(Part.Circle(App.Vector(18, -18, 0), App.Vector(0, 0, 1), 5.6), math.radians(-122), math.radians(0)), False)
sketch4.addGeometry(Part.LineSegment(App.Vector(15, -22.7, 0), App.Vector(3.5, -15.4, 0)), False)
sketch4.addGeometry(Part.Circle(App.Vector(-18, 18, 0), App.Vector(0, 0, 1), 3.6), False)
sketch4.addGeometry(Part.Circle(App.Vector(18, 18, 0), App.Vector(0, 0, 1), 3.6), False)
sketch4.addGeometry(Part.ArcOfCircle(Part.Circle(App.Vector(0, 0, 0), App.Vector(0, 0, 1), 6.4), math.radians(-135), math.radians(-45)), False)
sketch4.addGeometry(Part.ArcOfCircle(Part.Circle(App.Vector(0, 0, 0), App.Vector(0, 0, 1), 6.3), math.radians(-45), math.radians(225)), False)
sketch4.addGeometry(Part.Circle(App.Vector(18, -18, 0), App.Vector(0, 0, 1), 3.6), False)
sketch4.addConstraint(Sketcher.Constraint("Coincident", 0, 2, 1, 1))
sketch4.addConstraint(Sketcher.Constraint("Coincident", 1, 2, 2, 1))
sketch4.addConstraint(Sketcher.Constraint("Coincident", 2, 2, 3, 2))
sketch4.addConstraint(Sketcher.Constraint("Coincident", 3, 1, 4, 1))
sketch4.addConstraint(Sketcher.Constraint("Tangent", 4, 2, 5, 2))
sketch4.addConstraint(Sketcher.Constraint("Tangent", 5, 1, 6, 1))
sketch4.addConstraint(Sketcher.Constraint("Coincident", 6, 2, 0, 1))
sketch4.addConstraint(Sketcher.Constraint("Tangent", 9, 1, 10, 2))
sketch4.addConstraint(Sketcher.Constraint("Coincident", 10, 1, 9, 2))
sketch4.addConstraint(Sketcher.Constraint("Horizontal", 0))
sketch4.addConstraint(Sketcher.Constraint("Vertical", 4))
sketch4.addConstraint(Sketcher.Constraint("Coincident", 3, 3, -1, 1))
sketch4.addConstraint(Sketcher.Constraint("Coincident", 9, 3, -1, 1))
sketch4.addConstraint(Sketcher.Constraint("Coincident", 11, 3, 5, 3))
sketch4.addConstraint(Sketcher.Constraint("Equal", 7, 8))
sketch4.addConstraint(Sketcher.Constraint("Equal", 8, 11))
sketch4.addConstraint(Sketcher.Constraint("Symmetric", 5, 3, 7, 3, -1, 1))
sketch4.addConstraint(Sketcher.Constraint("Symmetric", 7, 3, 8, 3, -2))
sketch4.addConstraint(Sketcher.Constraint("Horizontal", 9, 1, 10, 1))
sketch4.addConstraint(Sketcher.Constraint("Radius", 3, Q("1.4 in")))
sketch4.addConstraint(Sketcher.Constraint("Radius", 9, Q("0.25 in")))
sketch4.addConstraint(Sketcher.Constraint("Diameter", 7, Q("0.28125 in")))
sketch4.addConstraint(Sketcher.Constraint("DistanceX", 0, 2, 0, 1, Q("0.275 in")))
sketch4.addConstraint(Sketcher.Constraint("DistanceX", 0, 2, -1, 1, Q("0.1375 in")))
sketch4.addConstraint(Sketcher.Constraint("Radius", 5, 5.571875))
sketch4.addConstraint(Sketcher.Constraint("DistanceY", 0, 2, -1, 1, 15.384))
sketch4.addConstraint(Sketcher.Constraint("DistanceX", -1, 1, 5, 1, 14.976701))
sketch4.addConstraint(Sketcher.Constraint("DistanceY", 8, 3, 3, 1, 8.699202))
sketch4.addConstraint(Sketcher.Constraint("Distance", 1, 12.14313))
sketch4.addConstraint(Sketcher.Constraint("DistanceY", 1, 2, -1, 1, 27.330889))
sketch4.addConstraint(Sketcher.Constraint("DistanceY", 2, 2, -1, 1, 33.157348))
sketch4.addConstraint(Sketcher.Constraint("DistanceX", 9, 1, -1, 1, 4.490128))
sketch4.setExpression("Constraints[19]", "Params.sketch4_radius")
sketch4.setExpression("Constraints[20]", "Params.sketch4_radius2")
sketch4.setExpression("Constraints[21]", "Params.sketch4_diameter")
sketch4.setExpression("Constraints[22]", "Params.sketch4_width")
pad4 = doc.addObject("PartDesign::Pad", "Pad003")
body.addObject(pad4)
pad4.Profile = sketch4
pad4.setExpression("Length", "Params.pad4_length")
pad4.Reversed = True

# Sketch on YZ plane
sketch5 = doc.addObject("Sketcher::SketchObject", "Sketch004")
body.addObject(sketch5)
sketch5.AttachmentSupport = (doc.YZ_Plane, [""])
sketch5.MapMode = "FlatFace"
sketch5.AttachmentOffset = App.Placement(App.Vector(0, 0, 23.532387), App.Rotation())
sketch5.addGeometry(Part.Circle(App.Vector(15.4, 4.8, 0), App.Vector(0, 0, 1), 1.5), False)
sketch5.addGeometry(Part.Circle(App.Vector(15.4, -4.8, 0), App.Vector(0, 0, 1), 1.5), False)
sketch5.addConstraint(Sketcher.Constraint("Equal", 0, 1))
sketch5.addConstraint(Sketcher.Constraint("Symmetric", 0, 3, 1, 3, -1))
sketch5.addConstraint(Sketcher.Constraint("Diameter", 0, 3.0))
sketch5.addConstraint(Sketcher.Constraint("DistanceX", -1, 1, 0, 3, 15.449))
sketch5.addConstraint(Sketcher.Constraint("DistanceY", -1, 1, 0, 3, 4.75))
pocket1 = doc.addObject("PartDesign::Pocket", "Pocket")
body.addObject(pocket1)
pocket1.Profile = sketch5
pocket1.setExpression("Length", "Params.pocket1_length")

doc.recompute()
